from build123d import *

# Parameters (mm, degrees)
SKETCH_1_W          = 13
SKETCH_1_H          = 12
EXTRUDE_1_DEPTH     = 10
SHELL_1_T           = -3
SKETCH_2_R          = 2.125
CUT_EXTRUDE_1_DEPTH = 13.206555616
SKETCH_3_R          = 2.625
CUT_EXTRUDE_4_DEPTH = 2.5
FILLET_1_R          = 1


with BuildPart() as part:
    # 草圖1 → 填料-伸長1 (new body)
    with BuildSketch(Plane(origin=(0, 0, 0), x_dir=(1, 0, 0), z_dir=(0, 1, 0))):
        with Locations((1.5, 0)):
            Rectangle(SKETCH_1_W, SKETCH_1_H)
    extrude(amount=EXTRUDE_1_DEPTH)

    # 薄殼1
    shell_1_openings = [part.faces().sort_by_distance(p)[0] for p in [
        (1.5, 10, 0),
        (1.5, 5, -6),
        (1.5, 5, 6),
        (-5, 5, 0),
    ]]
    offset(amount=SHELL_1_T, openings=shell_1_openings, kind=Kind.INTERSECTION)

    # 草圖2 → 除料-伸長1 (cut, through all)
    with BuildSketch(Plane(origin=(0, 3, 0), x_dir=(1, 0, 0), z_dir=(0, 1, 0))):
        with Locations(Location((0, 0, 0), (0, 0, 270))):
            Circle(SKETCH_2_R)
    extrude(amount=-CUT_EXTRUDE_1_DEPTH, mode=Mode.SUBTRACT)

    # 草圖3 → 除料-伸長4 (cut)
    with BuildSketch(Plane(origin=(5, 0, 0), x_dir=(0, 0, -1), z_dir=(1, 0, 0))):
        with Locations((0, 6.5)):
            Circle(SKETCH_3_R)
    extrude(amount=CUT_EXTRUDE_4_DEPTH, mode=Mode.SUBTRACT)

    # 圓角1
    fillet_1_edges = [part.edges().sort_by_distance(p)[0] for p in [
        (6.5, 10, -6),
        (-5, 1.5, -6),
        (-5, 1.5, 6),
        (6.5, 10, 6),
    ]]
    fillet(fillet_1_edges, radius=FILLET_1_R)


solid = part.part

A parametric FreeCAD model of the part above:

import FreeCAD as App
import Part
import Sketcher

V = App.Vector


def edges_at(feature, points):
    """Names of the edges that pass closest to the given points."""
    edges = feature.Shape.Edges
    near = lambda p: min(range(len(edges)), key=lambda i: edges[i].distToShape(Part.Vertex(*p))[0])
    return sorted({f"Edge{near(p) + 1}" for p in points})


def faces_at(feature, points):
    """Names of the faces that lie closest to the given points."""
    faces = feature.Shape.Faces
    near = lambda p: min(range(len(faces)), key=lambda i: faces[i].distToShape(Part.Vertex(*p))[0])
    return sorted({f"Face{near(p) + 1}" for p in points})

doc = App.newDocument("Part")
params = doc.addObject("Spreadsheet::Sheet", "Params")
for row, (alias, value) in enumerate([
    ("sketch1_width", "13 mm"),
    ("sketch1_height", "12 mm"),
    ("pad1_length", "10 mm"),
    ("thickness_wall", "3 mm"),
    ("sketch2_diameter", "4.25 mm"),
    ("sketch3_diameter", "5.25 mm"),
    ("pocket2_length", "2.5 mm"),
    ("fillet_radius", "1 mm"),
], start=1):
    params.set(f"A{row}", alias)
    params.set(f"B{row}", "=" + value)
    params.setAlias(f"B{row}", alias)

body = doc.addObject("PartDesign::Body", "Body")

# Sketch on XZ plane
sketch1 = doc.addObject("Sketcher::SketchObject", "Sketch")
body.addObject(sketch1)
sketch1.AttachmentSupport = (doc.XZ_Plane, [""])
sketch1.MapMode = "FlatFace"
sketch1.addGeometry([
    Part.LineSegment(V(-5, -6, 0), V(-5, 6, 0)),
    Part.LineSegment(V(-5, 6, 0), V(8, 6, 0)),
    Part.LineSegment(V(8, 6, 0), V(8, -6, 0)),
    Part.LineSegment(V(8, -6, 0), V(-5, -6, 0)),
], False)
sketch1.addConstraint([
    Sketcher.Constraint("Coincident", 0, 2, 1, 1),
    Sketcher.Constraint("Coincident", 1, 2, 2, 1),
    Sketcher.Constraint("Coincident", 2, 2, 3, 1),
    Sketcher.Constraint("Coincident", 3, 2, 0, 1),
    Sketcher.Constraint("Vertical", 0),
    Sketcher.Constraint("Horizontal", 1),
    Sketcher.Constraint("Vertical", 2),
    Sketcher.Constraint("Horizontal", 3),
    Sketcher.Constraint("DistanceX", 1, 1, 1, 2, 13.0),
    Sketcher.Constraint("DistanceY", 0, 1, 0, 2, 12.0),
    Sketcher.Constraint("DistanceX", 0, 2, -1, 1, 5.0),
    Sketcher.Constraint("DistanceY", -1, 1, 0, 2, 6.0),
])
sketch1.setExpression("Constraints[8]", "Params.sketch1_width")
sketch1.setExpression("Constraints[9]", "Params.sketch1_height")
pad1 = doc.addObject("PartDesign::Pad", "Pad")
body.addObject(pad1)
pad1.Profile = sketch1
pad1.setExpression("Length", "Params.pad1_length")
pad1.Reversed = True
doc.recompute()

thickness = doc.addObject("PartDesign::Thickness", "Thickness")
body.addObject(thickness)
thickness.Base = (pad1, faces_at(pad1, [
    (1.5, 10, 0),
    (1.5, 5, -6),
    (1.5, 5, 6),
    (-5, 5, 0),
]))
thickness.setExpression("Value", "Params.thickness_wall")
thickness.Reversed = True
thickness.Join = "Intersection"

# Sketch on XZ plane
sketch2 = doc.addObject("Sketcher::SketchObject", "Sketch001")
body.addObject(sketch2)
sketch2.AttachmentSupport = (doc.XZ_Plane, [""])
sketch2.MapMode = "FlatFace"
sketch2.AttachmentOffset = App.Placement(V(0, 0, -3), App.Rotation())
sketch2.addGeometry(Part.Circle(V(0, 0, 0), V(0, 0, 1), 2.125), False)
sketch2.addConstraint([
    Sketcher.Constraint("Coincident", 0, 3, -1, 1),
    Sketcher.Constraint("Diameter", 0, 4.25),
])
sketch2.setExpression("Constraints[1]", "Params.sketch2_diameter")
pocket1 = doc.addObject("PartDesign::Pocket", "Pocket")
body.addObject(pocket1)
pocket1.Profile = sketch2
pocket1.Type = "ThroughAll"
pocket1.Reversed = True

# Sketch on YZ plane
sketch3 = doc.addObject("Sketcher::SketchObject", "Sketch002")
body.addObject(sketch3)
sketch3.AttachmentSupport = (doc.YZ_Plane, [""])
sketch3.MapMode = "FlatFace"
sketch3.AttachmentOffset = App.Placement(V(0, 0, 5), App.Rotation())
sketch3.addGeometry(Part.Circle(V(6.5, 0, 0), V(0, 0, 1), 2.625), False)
sketch3.addConstraint([
    Sketcher.Constraint("PointOnObject", 0, 3, -1),
    Sketcher.Constraint("Diameter", 0, 5.25),
    Sketcher.Constraint("DistanceX", -1, 1, 0, 3, 6.5),
])
sketch3.setExpression("Constraints[1]", "Params.sketch3_diameter")
pocket2 = doc.addObject("PartDesign::Pocket", "Pocket001")
body.addObject(pocket2)
pocket2.Profile = sketch3
pocket2.setExpression("Length", "Params.pocket2_length")
pocket2.Reversed = True
doc.recompute()

fillet = doc.addObject("PartDesign::Fillet", "Fillet")
body.addObject(fillet)
fillet.Base = (pocket2, edges_at(pocket2, [
    (6.5, 10, -6),
    (-5, 1.5, -6),
    (-5, 1.5, 6),
    (6.5, 10, 6),
]))
fillet.setExpression("Radius", "Params.fillet_radius")

doc.recompute()
